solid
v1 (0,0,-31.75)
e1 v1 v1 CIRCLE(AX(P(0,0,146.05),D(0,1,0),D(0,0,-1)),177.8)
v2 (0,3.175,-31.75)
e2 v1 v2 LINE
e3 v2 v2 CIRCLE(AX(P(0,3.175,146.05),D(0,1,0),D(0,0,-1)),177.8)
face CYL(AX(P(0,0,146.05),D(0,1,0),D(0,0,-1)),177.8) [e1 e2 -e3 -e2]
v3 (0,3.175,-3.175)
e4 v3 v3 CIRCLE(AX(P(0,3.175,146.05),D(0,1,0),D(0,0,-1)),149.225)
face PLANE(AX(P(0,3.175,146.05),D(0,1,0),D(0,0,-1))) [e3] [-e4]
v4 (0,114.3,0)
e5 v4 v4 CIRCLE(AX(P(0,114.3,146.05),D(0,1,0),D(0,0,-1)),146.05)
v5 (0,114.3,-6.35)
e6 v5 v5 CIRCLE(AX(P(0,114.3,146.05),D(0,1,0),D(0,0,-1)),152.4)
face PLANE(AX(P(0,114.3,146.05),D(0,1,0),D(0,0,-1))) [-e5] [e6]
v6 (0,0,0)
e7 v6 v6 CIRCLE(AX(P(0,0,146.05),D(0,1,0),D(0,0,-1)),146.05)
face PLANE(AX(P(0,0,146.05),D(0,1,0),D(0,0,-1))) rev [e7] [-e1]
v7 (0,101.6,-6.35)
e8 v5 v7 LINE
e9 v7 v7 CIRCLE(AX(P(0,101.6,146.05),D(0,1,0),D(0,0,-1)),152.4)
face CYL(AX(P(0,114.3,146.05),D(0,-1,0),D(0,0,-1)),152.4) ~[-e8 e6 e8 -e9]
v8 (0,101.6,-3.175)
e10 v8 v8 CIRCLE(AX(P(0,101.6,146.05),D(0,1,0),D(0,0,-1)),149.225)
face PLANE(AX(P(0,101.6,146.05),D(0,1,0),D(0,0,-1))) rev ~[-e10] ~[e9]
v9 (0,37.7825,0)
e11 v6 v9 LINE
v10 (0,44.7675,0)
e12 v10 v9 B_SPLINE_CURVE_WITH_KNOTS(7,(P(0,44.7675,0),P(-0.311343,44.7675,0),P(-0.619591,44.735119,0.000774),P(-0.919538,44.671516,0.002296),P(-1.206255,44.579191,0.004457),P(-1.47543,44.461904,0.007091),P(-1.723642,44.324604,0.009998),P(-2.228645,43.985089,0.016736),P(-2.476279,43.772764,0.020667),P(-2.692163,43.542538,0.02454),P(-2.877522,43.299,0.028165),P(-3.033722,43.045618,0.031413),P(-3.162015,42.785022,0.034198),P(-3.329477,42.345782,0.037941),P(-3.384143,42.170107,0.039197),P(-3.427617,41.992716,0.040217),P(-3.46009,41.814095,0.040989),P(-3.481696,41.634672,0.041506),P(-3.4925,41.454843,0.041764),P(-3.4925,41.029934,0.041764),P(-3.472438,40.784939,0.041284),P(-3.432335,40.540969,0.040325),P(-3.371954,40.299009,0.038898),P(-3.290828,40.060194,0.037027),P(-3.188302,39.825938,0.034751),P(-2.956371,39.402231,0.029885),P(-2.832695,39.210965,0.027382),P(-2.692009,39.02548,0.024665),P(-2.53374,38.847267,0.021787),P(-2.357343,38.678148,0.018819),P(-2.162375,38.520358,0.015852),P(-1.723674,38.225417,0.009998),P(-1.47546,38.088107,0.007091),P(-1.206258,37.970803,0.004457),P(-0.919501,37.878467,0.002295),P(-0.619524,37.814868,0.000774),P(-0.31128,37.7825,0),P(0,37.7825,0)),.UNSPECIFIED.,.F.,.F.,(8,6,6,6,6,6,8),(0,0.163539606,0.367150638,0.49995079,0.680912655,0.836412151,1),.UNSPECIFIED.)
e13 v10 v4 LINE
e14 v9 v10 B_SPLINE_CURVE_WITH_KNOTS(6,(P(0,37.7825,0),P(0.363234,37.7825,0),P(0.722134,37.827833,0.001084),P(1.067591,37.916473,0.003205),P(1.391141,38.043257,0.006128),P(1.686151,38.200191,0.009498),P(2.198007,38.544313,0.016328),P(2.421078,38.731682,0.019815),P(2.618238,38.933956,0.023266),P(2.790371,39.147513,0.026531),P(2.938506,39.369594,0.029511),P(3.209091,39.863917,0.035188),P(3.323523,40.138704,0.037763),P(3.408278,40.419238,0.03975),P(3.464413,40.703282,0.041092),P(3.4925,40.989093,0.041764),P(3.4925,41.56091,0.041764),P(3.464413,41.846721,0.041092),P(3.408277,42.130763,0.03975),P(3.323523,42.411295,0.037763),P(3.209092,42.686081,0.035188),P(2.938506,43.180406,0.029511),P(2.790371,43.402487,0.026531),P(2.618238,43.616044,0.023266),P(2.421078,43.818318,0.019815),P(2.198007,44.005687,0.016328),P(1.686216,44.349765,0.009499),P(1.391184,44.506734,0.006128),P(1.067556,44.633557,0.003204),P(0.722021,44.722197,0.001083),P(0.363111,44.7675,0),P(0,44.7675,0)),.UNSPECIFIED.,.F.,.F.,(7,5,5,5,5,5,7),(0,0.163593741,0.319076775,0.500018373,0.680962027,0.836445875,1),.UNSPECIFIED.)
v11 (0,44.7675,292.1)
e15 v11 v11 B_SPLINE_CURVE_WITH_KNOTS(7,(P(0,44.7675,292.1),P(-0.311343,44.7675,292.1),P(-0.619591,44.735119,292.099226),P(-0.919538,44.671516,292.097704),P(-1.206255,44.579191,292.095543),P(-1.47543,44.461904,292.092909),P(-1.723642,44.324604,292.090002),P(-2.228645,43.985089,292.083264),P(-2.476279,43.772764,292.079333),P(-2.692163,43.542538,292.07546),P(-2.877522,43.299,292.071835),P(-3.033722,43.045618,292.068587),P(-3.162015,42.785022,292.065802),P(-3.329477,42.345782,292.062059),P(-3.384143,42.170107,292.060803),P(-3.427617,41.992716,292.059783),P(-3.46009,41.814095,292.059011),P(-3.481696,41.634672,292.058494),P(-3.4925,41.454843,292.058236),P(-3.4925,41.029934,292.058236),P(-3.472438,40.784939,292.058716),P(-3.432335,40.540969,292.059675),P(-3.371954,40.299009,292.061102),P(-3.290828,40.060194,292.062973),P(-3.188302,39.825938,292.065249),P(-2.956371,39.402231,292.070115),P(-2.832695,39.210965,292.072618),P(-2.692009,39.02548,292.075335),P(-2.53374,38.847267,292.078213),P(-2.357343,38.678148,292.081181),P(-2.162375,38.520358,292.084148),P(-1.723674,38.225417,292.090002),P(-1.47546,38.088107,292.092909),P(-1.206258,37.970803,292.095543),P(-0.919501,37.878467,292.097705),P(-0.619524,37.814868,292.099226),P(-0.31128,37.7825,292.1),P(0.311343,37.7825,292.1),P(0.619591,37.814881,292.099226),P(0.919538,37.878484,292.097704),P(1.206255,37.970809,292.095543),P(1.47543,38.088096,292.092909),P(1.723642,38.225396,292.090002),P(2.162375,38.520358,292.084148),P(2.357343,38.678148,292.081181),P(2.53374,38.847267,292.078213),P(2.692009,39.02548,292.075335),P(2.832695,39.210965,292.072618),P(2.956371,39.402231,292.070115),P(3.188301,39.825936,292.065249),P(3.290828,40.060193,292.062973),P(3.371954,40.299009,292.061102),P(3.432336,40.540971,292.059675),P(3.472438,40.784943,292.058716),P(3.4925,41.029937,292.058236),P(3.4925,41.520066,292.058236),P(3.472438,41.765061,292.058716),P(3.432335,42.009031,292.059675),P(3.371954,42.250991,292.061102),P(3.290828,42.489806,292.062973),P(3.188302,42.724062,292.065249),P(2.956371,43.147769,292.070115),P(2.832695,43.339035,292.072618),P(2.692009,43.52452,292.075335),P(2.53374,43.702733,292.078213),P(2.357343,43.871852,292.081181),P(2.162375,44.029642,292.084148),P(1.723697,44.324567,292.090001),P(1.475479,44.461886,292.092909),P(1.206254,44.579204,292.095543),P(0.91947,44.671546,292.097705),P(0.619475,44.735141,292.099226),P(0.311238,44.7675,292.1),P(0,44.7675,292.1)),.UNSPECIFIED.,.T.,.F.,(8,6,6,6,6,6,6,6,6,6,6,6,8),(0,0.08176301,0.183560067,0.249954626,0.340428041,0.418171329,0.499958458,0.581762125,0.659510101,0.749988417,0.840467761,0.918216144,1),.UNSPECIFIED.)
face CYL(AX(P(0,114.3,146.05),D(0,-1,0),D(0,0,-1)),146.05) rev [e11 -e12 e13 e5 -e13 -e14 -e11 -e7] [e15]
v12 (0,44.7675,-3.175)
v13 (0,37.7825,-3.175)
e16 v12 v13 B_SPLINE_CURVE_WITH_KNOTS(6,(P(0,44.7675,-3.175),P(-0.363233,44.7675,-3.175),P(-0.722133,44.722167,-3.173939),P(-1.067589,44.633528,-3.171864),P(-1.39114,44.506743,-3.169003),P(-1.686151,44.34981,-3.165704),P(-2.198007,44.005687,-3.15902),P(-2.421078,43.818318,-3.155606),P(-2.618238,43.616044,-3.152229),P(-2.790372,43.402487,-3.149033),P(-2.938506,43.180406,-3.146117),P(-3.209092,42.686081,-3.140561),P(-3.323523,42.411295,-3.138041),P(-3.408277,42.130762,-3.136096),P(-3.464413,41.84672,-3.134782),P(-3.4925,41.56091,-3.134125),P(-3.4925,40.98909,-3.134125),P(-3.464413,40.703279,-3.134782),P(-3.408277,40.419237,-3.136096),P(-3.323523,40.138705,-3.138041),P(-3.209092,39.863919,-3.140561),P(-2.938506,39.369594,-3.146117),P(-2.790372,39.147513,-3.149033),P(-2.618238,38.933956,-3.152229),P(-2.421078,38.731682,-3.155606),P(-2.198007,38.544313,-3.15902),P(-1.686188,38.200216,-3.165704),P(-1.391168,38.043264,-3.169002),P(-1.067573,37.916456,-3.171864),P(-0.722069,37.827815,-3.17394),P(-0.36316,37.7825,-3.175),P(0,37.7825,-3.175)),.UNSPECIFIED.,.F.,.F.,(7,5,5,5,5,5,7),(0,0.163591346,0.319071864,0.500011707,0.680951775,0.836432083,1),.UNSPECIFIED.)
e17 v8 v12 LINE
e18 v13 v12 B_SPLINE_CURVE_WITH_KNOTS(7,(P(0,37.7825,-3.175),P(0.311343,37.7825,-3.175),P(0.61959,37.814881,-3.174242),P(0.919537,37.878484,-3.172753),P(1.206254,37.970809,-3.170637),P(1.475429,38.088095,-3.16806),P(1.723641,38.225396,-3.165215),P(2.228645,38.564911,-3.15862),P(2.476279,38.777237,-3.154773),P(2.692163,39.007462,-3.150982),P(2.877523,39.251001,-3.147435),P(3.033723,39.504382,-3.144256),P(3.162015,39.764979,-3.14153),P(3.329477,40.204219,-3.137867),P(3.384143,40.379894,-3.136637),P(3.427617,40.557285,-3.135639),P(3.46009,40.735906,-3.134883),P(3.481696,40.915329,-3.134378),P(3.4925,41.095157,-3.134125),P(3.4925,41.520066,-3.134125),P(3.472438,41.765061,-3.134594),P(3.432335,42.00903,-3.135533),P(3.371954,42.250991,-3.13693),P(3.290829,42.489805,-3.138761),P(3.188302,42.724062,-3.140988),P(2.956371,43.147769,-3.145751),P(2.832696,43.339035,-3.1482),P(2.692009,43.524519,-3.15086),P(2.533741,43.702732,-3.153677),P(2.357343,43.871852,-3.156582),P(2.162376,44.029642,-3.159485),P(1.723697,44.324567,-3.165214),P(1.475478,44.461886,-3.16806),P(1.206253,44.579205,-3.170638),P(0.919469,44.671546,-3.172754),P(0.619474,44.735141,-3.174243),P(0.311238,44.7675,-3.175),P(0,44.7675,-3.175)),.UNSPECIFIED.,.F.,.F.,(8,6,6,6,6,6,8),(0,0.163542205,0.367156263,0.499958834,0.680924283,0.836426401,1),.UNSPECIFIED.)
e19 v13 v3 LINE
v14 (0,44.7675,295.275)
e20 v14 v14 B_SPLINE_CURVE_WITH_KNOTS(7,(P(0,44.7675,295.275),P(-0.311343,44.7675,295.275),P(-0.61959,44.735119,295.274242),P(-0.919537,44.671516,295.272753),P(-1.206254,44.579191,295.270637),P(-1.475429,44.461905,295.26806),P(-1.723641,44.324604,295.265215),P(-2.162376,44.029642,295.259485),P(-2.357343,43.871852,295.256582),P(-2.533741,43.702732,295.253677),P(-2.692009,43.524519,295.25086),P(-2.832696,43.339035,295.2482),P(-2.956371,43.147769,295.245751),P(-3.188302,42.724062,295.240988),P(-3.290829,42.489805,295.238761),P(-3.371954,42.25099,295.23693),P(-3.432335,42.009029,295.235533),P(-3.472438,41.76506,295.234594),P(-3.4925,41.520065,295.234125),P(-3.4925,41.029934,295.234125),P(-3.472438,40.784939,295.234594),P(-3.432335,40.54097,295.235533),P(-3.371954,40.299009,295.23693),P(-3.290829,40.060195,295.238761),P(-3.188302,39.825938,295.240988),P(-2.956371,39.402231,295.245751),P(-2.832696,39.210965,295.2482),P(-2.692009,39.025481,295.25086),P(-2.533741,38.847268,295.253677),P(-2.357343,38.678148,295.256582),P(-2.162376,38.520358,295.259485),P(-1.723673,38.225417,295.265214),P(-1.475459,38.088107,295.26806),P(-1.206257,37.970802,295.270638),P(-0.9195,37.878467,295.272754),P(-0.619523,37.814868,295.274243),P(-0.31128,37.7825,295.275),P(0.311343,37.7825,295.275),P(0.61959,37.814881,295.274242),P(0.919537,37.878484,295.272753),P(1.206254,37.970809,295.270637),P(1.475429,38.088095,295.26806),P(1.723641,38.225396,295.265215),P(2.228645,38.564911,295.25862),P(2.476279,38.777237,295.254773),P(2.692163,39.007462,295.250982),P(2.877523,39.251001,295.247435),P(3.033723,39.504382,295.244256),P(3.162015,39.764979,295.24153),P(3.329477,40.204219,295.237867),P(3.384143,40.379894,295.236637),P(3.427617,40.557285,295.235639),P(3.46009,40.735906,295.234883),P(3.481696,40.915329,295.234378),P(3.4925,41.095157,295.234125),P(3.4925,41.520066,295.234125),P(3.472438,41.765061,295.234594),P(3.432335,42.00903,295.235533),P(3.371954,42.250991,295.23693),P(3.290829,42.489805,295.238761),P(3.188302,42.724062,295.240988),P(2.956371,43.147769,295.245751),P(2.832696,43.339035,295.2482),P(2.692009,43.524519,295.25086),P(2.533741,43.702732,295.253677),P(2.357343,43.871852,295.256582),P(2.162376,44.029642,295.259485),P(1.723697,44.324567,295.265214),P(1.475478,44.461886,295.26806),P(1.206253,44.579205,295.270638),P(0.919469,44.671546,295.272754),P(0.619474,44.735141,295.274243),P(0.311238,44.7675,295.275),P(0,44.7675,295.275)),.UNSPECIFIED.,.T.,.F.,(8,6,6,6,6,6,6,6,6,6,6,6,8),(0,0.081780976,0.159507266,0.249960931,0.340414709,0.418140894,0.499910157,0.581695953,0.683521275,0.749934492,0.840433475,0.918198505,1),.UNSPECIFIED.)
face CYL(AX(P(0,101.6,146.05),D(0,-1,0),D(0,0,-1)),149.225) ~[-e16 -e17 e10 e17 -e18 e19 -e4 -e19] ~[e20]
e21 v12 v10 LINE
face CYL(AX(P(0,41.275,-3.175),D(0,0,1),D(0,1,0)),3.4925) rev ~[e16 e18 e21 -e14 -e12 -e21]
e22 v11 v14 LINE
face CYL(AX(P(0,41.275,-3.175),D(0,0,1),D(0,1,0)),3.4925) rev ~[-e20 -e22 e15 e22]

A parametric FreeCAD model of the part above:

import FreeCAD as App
import Part
import Sketcher
Q = App.Units.Quantity

doc = App.newDocument("Part")
params = doc.addObject("Spreadsheet::Sheet", "Params")
for row, (alias, value) in enumerate([
    ("sketch1_width", "0.5 in"),
    ("sketch1_height", "1.25 in"),
    ("sketch1_width2", "0.125 in"),
    ("sketch1_height2", "1.125 in"),
    ("sketch1_width3", "4.5 in"),
    ("revolution_angle", "360 deg"),
    ("sketch2_diameter", "0.275 in"),
    ("hole_diameter", "0.275 in"),
], start=1):
    params.set(f"A{row}", alias)
    params.set(f"B{row}", "=" + value)
    params.setAlias(f"B{row}", alias)

body = doc.addObject("PartDesign::Body", "Body")

# Sketch on YZ plane
sketch1 = doc.addObject("Sketcher::SketchObject", "Sketch")
body.addObject(sketch1)
sketch1.AttachmentSupport = (doc.YZ_Plane, [""])
sketch1.MapMode = "FlatFace"
sketch1.addGeometry([
    Part.LineSegment(App.Vector(0, 0, 0), App.Vector(0, -31.8, 0)),  # 0
    Part.LineSegment(App.Vector(0, -31.8, 0), App.Vector(3.2, -31.8, 0)),  # 1
    Part.LineSegment(App.Vector(3.2, -31.8, 0), App.Vector(3.2, -3.2, 0)),  # 2
    Part.LineSegment(App.Vector(3.2, -3.2, 0), App.Vector(101.6, -3.2, 0)),  # 3
    Part.LineSegment(App.Vector(101.6, -3.2, 0), App.Vector(101.6, -6.3, 0)),  # 4
    Part.LineSegment(App.Vector(101.6, -6.3, 0), App.Vector(114.3, -6.3, 0)),  # 5
    Part.LineSegment(App.Vector(114.3, -6.3, 0), App.Vector(114.3, 0, 0)),  # 6
    Part.LineSegment(App.Vector(114.3, 0, 0), App.Vector(0, 0, 0)),  # 7
], False)
sketch1.addGeometry(Part.LineSegment(App.Vector(0, 146.1, 0), App.Vector(114.3, 146.1, 0)), True)  # axis
sketch1.addConstraint([
    Sketcher.Constraint("Coincident", 0, 2, 1, 1),
    Sketcher.Constraint("Coincident", 1, 2, 2, 1),
    Sketcher.Constraint("Coincident", 2, 2, 3, 1),
    Sketcher.Constraint("Coincident", 3, 2, 4, 1),
    Sketcher.Constraint("Coincident", 4, 2, 5, 1),
    Sketcher.Constraint("Coincident", 5, 2, 6, 1),
    Sketcher.Constraint("Coincident", 6, 2, 7, 1),
    Sketcher.Constraint("Coincident", 7, 2, 0, 1),
    Sketcher.Constraint("Vertical", 0),
    Sketcher.Constraint("Horizontal", 1),
    Sketcher.Constraint("Vertical", 2),
    Sketcher.Constraint("Horizontal", 3),
    Sketcher.Constraint("Vertical", 4),
    Sketcher.Constraint("Horizontal", 5),
    Sketcher.Constraint("Vertical", 6),
    Sketcher.Constraint("Horizontal", 7),
    Sketcher.Constraint("Horizontal", 8),
    Sketcher.Constraint("Coincident", 7, 2, -1, 1),
    Sketcher.Constraint("PointOnObject", 8, 1, -2),
    Sketcher.Constraint("Vertical", 6, 2, 8, 2),
    Sketcher.Constraint("Equal", 1, 4),
    Sketcher.Constraint("DistanceX", 5, 1, 5, 2, Q("0.5 in")),
    Sketcher.Constraint("DistanceY", 0, 2, 0, 1, Q("1.25 in")),
    Sketcher.Constraint("DistanceX", 1, 1, 1, 2, Q("0.125 in")),
    Sketcher.Constraint("DistanceY", 2, 1, 2, 2, Q("1.125 in")),
    Sketcher.Constraint("DistanceY", -1, 1, 8, 1, Q("5.75 in")),
    Sketcher.Constraint("DistanceX", 7, 2, 7, 1, Q("4.5 in")),
])
sketch1.setExpression("Constraints[21]", "Params.sketch1_width")
sketch1.setExpression("Constraints[22]", "Params.sketch1_height")
sketch1.setExpression("Constraints[23]", "Params.sketch1_width2")
sketch1.setExpression("Constraints[24]", "Params.sketch1_height2")
sketch1.setExpression("Constraints[26]", "Params.sketch1_width3")
revolution = doc.addObject("PartDesign::Revolution", "Revolution")
body.addObject(revolution)
revolution.Profile = sketch1
revolution.ReferenceAxis = (sketch1, ["Axis0"])
revolution.setExpression("Angle", "Params.revolution_angle")

# Sketch on XY plane
sketch2 = doc.addObject("Sketcher::SketchObject", "Sketch001")
body.addObject(sketch2)
sketch2.AttachmentSupport = (doc.XY_Plane, [""])
sketch2.MapMode = "FlatFace"
sketch2.AttachmentOffset = App.Placement(App.Vector(0, 0, -0.125 * 25.4), App.Rotation())
sketch2.addGeometry(Part.Circle(App.Vector(0, 41.3, 0), App.Vector(0, 0, 1), 3.5), False)
sketch2.addConstraint([
    Sketcher.Constraint("PointOnObject", 0, 3, -2),
    Sketcher.Constraint("Diameter", 0, Q("0.275 in")),
    Sketcher.Constraint("DistanceY", -1, 1, 0, 3, Q("1.625 in")),
])
sketch2.setExpression("Constraints[1]", "Params.sketch2_diameter")
doc.recompute()
hole = doc.addObject("PartDesign::Hole", "Hole")
body.addObject(hole)
hole.Profile = sketch2
hole.ThreadType = "None"
hole.setExpression("Diameter", "Params.hole_diameter")
hole.DepthType = "ThroughAll"
hole.Reversed = True

doc.recompute()
